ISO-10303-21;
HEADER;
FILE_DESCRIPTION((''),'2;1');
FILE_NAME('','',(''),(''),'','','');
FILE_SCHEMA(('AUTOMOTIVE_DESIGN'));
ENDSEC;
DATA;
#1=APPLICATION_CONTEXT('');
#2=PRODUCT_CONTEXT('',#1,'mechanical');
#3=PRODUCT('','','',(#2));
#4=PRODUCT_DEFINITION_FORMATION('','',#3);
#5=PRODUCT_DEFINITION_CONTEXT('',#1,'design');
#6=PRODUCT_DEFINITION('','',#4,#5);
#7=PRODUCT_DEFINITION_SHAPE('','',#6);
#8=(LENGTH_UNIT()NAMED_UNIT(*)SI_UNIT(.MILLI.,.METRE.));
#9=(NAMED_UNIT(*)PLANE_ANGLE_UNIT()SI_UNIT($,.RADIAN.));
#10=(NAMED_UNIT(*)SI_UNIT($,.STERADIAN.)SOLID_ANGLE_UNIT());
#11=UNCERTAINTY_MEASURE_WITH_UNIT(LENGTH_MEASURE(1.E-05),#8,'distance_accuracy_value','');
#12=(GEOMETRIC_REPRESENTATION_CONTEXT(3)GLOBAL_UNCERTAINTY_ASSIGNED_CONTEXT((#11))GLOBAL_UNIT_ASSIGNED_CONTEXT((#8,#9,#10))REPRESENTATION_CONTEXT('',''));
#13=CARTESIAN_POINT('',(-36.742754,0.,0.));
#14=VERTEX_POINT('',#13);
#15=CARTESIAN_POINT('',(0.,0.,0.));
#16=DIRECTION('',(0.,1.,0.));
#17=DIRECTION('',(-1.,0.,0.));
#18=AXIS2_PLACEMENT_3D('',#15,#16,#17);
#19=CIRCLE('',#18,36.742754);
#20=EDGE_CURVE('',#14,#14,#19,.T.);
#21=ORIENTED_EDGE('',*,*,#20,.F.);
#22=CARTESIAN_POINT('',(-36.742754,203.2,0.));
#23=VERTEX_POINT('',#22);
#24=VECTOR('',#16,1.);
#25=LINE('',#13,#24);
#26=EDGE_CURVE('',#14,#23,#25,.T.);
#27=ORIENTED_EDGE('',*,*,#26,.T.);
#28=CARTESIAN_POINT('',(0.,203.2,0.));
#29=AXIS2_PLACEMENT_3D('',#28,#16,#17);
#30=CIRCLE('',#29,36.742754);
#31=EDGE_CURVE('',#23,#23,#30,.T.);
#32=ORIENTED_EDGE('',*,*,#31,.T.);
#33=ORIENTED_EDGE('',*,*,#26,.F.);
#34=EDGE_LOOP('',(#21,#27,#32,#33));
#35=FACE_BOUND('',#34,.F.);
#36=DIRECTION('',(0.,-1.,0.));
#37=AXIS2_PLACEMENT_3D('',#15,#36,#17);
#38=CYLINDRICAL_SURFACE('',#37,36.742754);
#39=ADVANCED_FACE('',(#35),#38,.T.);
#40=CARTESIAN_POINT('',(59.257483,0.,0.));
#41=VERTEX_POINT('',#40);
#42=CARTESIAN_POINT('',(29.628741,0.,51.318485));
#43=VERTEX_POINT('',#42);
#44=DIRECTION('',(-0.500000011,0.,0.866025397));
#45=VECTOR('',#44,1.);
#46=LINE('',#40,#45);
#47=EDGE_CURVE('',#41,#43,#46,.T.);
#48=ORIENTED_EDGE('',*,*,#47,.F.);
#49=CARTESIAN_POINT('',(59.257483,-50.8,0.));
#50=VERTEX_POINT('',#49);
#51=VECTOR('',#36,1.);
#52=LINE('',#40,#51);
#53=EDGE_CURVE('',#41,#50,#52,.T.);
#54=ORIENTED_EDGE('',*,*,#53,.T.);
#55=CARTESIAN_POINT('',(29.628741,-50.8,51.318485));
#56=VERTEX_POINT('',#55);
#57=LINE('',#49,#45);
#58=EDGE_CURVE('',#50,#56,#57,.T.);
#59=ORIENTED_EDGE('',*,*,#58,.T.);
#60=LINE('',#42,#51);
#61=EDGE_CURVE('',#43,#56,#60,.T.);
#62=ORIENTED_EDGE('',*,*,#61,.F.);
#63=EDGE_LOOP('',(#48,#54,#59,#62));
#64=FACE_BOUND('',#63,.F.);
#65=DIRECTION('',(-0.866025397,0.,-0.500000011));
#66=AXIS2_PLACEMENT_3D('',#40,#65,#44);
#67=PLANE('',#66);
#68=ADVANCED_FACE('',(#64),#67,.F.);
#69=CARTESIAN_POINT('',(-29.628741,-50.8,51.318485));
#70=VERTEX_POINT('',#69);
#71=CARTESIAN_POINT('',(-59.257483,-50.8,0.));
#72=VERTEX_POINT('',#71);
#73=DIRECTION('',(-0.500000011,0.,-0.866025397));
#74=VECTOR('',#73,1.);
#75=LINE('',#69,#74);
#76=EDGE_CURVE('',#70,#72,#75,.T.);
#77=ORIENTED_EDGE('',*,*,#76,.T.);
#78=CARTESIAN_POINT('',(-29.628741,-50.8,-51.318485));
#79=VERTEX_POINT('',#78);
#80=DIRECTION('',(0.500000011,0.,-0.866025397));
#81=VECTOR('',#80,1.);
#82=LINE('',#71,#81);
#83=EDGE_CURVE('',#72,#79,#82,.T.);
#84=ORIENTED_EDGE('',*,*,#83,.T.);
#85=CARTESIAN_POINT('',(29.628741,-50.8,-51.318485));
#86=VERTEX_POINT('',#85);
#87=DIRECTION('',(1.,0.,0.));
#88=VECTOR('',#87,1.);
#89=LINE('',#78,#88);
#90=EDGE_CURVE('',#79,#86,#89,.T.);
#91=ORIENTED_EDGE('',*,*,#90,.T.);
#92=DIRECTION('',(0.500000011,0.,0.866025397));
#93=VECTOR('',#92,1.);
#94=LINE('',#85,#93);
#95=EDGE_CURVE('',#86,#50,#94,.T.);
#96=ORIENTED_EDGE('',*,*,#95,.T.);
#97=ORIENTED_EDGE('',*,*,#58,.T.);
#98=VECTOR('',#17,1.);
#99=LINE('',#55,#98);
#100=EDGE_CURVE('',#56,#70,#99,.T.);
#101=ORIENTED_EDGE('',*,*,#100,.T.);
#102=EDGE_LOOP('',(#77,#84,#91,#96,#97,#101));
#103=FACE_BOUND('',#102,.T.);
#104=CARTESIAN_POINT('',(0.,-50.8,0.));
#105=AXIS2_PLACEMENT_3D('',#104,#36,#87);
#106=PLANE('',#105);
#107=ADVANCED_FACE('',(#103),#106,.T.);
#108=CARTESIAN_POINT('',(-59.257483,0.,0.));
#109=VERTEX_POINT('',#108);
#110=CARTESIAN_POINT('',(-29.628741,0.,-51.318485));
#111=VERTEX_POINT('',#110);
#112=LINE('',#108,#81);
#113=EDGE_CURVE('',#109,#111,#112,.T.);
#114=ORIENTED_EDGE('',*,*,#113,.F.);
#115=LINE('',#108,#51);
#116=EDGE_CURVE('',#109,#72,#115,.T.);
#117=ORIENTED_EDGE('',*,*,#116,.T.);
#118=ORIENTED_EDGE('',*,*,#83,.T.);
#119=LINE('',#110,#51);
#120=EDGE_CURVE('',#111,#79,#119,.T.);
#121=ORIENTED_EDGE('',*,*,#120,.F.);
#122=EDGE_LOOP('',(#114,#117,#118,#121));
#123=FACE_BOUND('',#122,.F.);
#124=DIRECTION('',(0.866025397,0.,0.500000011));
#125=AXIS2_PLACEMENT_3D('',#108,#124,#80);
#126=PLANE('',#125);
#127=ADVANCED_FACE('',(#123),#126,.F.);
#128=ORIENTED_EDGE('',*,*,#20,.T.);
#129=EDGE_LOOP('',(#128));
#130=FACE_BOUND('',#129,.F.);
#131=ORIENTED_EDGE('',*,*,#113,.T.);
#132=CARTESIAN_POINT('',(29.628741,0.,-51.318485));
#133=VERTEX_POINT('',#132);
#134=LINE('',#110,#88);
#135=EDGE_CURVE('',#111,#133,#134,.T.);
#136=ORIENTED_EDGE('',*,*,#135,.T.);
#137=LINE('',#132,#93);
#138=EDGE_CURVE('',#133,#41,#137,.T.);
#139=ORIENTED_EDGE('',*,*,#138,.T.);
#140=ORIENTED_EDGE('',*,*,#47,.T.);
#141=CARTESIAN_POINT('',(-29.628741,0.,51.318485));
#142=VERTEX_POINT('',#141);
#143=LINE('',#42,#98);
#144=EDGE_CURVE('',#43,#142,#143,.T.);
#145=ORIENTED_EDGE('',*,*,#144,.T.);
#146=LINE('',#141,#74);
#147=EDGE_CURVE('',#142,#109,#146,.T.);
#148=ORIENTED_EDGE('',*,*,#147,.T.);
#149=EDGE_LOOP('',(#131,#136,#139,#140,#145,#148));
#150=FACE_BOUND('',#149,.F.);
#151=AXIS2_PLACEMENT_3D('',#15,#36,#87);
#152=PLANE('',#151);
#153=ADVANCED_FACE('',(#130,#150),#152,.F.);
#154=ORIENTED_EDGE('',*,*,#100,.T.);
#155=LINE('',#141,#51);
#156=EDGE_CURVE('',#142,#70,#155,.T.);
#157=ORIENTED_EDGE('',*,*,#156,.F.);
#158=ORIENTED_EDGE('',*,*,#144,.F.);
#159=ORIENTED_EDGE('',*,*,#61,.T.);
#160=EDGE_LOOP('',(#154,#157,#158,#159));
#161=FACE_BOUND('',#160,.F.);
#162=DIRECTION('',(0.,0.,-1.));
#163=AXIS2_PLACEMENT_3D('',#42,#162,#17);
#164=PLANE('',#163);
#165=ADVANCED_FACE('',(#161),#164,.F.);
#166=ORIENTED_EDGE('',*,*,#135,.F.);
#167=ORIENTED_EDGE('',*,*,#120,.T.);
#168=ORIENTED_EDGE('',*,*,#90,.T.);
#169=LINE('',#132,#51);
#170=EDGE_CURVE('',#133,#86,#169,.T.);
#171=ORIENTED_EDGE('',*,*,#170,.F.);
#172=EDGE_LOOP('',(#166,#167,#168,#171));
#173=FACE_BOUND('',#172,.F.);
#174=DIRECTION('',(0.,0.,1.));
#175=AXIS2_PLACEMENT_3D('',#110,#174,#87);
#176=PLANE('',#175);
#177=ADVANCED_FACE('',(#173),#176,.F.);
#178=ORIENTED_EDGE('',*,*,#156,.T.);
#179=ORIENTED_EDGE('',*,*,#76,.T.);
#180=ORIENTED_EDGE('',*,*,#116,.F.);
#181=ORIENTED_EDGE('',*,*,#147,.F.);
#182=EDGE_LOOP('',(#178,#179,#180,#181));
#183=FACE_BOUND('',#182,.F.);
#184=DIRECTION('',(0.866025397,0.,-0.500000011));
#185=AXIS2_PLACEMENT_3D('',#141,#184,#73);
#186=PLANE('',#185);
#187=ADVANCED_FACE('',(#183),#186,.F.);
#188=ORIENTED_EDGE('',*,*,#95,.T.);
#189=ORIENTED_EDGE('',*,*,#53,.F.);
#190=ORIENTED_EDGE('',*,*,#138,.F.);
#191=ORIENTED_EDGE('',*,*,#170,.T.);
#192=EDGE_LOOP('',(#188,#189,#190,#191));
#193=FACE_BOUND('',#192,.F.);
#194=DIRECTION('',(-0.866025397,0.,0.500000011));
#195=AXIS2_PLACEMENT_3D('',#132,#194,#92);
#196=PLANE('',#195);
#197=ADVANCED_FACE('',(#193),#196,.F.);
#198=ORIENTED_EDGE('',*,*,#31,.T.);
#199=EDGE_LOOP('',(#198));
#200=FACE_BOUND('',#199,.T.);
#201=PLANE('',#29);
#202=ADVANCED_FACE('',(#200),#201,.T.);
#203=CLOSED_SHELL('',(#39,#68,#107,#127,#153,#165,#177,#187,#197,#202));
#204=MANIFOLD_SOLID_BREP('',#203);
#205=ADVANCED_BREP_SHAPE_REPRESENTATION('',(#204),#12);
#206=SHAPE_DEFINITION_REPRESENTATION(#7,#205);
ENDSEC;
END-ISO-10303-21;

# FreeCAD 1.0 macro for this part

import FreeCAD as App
import Part
import Sketcher
from FreeCAD import Vector
Q = App.Units.Quantity


def add_polygon(sketch, points):
    """Adds a closed chain of lines whose ends are joined by coincident constraints."""
    first, n = sketch.GeometryCount, len(points)
    for a, b in zip(points, points[1:] + points[:1]):
        sketch.addGeometry(Part.LineSegment(App.Vector(*a, 0), App.Vector(*b, 0)), False)
    for i in range(n):
        sketch.addConstraint(Sketcher.Constraint("Coincident", first + i, 2, first + (i + 1) % n, 1))

doc = App.newDocument("Part")
body = doc.addObject("PartDesign::Body", "Body")

# Sketch on XZ plane
sketch1 = body.newObject("Sketcher::SketchObject", "Sketch")
sketch1.AttachmentSupport = (doc.getObject("XZ_Plane"), [""])
sketch1.MapMode = "FlatFace"
add_polygon(sketch1, [(-29.628741, -51.318485), (29.628741, -51.318485), (59.257483, 0), (29.628741, 51.318485), (-29.628741, 51.318485), (-59.257483, 0)])  # lines 0-5
sketch1.addConstraint(Sketcher.Constraint("Horizontal", 0))
sketch1.addConstraint(Sketcher.Constraint("Horizontal", 3))
sketch1.addConstraint(Sketcher.Constraint("Symmetric", 0, 2, 3, 2, -1, 1))
sketch1.addConstraint(Sketcher.Constraint("Symmetric", 1, 2, 4, 2, -1, 1))
sketch1.addConstraint(Sketcher.Constraint("PointOnObject", 1, 2, -1))
sketch1.addConstraint(Sketcher.Constraint("Parallel", 2, 5))
sketch1.addConstraint(Sketcher.Constraint("Vertical", 0, 2, 2, 2))
sketch1.addConstraint(Sketcher.Constraint("Angle", 1, Q("59.999999 deg")))
sketch1.addConstraint(Sketcher.Constraint("DistanceX", 0, 1, 0, 2, 59.257482))
sketch1.addConstraint(Sketcher.Constraint("DistanceX", 0, 2, 1, 2, 29.628742))
pad1 = body.newObject("PartDesign::Pad", "Pad")
pad1.Profile = sketch1
pad1.Length = Q("2 in")

# Sketch on XZ plane
sketch2 = body.newObject("Sketcher::SketchObject", "Sketch001")
sketch2.AttachmentSupport = (doc.getObject("XZ_Plane"), [""])
sketch2.MapMode = "FlatFace"
sketch2.addGeometry(Part.Circle(Vector(0, 0, 0), Vector(0, 0, 1), 36.742754), False)
sketch2.addConstraint(Sketcher.Constraint("Coincident", 0, 3, -1, 1))
sketch2.addConstraint(Sketcher.Constraint("Diameter", 0, 73.485508))
pad2 = body.newObject("PartDesign::Pad", "Pad001")
pad2.Profile = sketch2
pad2.Length = Q("8 in")
pad2.Reversed = True

doc.recompute()
